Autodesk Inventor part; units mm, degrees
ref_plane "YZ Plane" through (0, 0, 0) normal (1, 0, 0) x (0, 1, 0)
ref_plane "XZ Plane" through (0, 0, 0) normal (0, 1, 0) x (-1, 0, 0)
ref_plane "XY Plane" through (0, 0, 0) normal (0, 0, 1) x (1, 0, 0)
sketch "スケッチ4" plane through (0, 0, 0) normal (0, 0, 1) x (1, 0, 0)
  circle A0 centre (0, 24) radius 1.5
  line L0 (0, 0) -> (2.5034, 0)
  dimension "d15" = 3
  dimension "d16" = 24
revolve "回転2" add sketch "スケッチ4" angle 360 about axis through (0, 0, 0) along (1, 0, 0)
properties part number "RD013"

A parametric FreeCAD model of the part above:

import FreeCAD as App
import Part
import Sketcher

V = App.Vector

doc = App.newDocument("Part")
body = doc.addObject("PartDesign::Body", "Body")

# Sketch on XY plane
sketch1 = body.newObject("Sketcher::SketchObject", "Sketch")
sketch1.AttachmentSupport = (doc.getObject("XY_Plane"), [""])
sketch1.MapMode = "FlatFace"
sketch1.addGeometry(Part.Circle(V(0, 24, 0), V(0, 0, 1), 1.5), False)
sketch1.addConstraint(Sketcher.Constraint("PointOnObject", 0, 3, -2))
sketch1.addConstraint(Sketcher.Constraint("Diameter", 0, 3.0))
sketch1.addConstraint(Sketcher.Constraint("DistanceY", -1, 1, 0, 3, 24.0))
revolution = body.newObject("PartDesign::Revolution", "Revolution")
revolution.Profile = sketch1
revolution.ReferenceAxis = (sketch1, ["H_Axis"])
revolution.Angle = 360

doc.recompute()
